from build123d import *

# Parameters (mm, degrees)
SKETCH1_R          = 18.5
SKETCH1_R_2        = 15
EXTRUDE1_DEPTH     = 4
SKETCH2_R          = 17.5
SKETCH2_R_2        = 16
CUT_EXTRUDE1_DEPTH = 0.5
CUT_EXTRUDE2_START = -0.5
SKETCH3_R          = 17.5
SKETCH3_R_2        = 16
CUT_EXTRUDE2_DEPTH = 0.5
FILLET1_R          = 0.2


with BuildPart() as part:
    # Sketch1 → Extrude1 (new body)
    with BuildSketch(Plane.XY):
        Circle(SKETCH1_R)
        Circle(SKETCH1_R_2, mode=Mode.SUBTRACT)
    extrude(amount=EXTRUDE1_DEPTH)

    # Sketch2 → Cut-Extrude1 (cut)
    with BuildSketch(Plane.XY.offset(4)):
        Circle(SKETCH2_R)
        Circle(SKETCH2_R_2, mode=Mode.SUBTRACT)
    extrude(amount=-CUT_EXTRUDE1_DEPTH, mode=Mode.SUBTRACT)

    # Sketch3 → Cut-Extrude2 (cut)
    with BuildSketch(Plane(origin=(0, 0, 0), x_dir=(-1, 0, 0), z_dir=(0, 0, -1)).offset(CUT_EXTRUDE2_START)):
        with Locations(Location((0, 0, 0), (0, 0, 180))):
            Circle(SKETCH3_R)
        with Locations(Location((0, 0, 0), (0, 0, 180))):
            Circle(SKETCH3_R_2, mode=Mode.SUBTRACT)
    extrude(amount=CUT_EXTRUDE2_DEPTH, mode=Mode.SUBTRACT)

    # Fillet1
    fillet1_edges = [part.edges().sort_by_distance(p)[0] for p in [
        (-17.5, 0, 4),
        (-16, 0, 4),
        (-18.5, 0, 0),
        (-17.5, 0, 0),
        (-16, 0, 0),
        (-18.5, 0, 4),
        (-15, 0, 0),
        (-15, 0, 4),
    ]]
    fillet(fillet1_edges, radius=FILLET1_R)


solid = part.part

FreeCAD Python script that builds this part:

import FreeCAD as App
import Part
import Sketcher
from FreeCAD import Vector


def edges_at(feature, points):
    """Names of the edges that pass closest to the given points."""
    edges = feature.Shape.Edges
    near = lambda p: min(range(len(edges)), key=lambda i: edges[i].distToShape(Part.Vertex(*p))[0])
    return sorted({f"Edge{near(p) + 1}" for p in points})

doc = App.newDocument("Part")
body = doc.addObject("PartDesign::Body", "Body")

sketch1 = body.newObject("Sketcher::SketchObject", "Sketch")
sketch1.AttachmentSupport = (doc.getObject("XY_Plane"), [""])
sketch1.MapMode = "FlatFace"
sketch1.addGeometry([
    Part.Circle(Vector(0, 0, 0), Vector(0, 0, 1), 18),
    Part.Circle(Vector(0, 0, 0), Vector(0, 0, 1), 15),
], False)
sketch1.addConstraint([
    Sketcher.Constraint("Coincident", 0, 3, -1, 1),
    Sketcher.Constraint("Coincident", 1, 3, -1, 1),
    Sketcher.Constraint("Diameter", 0, 37.0),
    Sketcher.Constraint("Diameter", 1, 30.0),
])
pad1 = body.newObject("PartDesign::Pad", "Pad")
pad1.Profile = sketch1
pad1.Length = 4

sketch2 = body.newObject("Sketcher::SketchObject", "Sketch001")
sketch2.AttachmentSupport = (doc.getObject("XY_Plane"), [""])
sketch2.MapMode = "FlatFace"
sketch2.AttachmentOffset = App.Placement(Vector(0, 0, 4), App.Rotation())
sketch2.addGeometry([
    Part.Circle(Vector(0, 0, 0), Vector(0, 0, 1), 18),
    Part.Circle(Vector(0, 0, 0), Vector(0, 0, 1), 16),
], False)
sketch2.addConstraint([
    Sketcher.Constraint("Coincident", 0, 3, -1, 1),
    Sketcher.Constraint("Coincident", 1, 3, -1, 1),
    Sketcher.Constraint("Diameter", 0, 35.0),
    Sketcher.Constraint("Diameter", 1, 32.0),
])
pocket1 = body.newObject("PartDesign::Pocket", "Pocket")
pocket1.Profile = sketch2
pocket1.Length = 0.5

sketch3 = body.newObject("Sketcher::SketchObject", "Sketch002")
sketch3.AttachmentSupport = (doc.getObject("XY_Plane"), [""])
sketch3.MapMode = "FlatFace"
sketch3.AttachmentOffset = App.Placement(Vector(0, 0, 0.5), App.Rotation())
sketch3.addGeometry([
    Part.Circle(Vector(0, 0, 0), Vector(0, 0, 1), 18),
    Part.Circle(Vector(0, 0, 0), Vector(0, 0, 1), 16),
], False)
sketch3.addConstraint([
    Sketcher.Constraint("Coincident", 0, 3, -1, 1),
    Sketcher.Constraint("Coincident", 1, 3, -1, 1),
    Sketcher.Constraint("Diameter", 0, 35.0),
    Sketcher.Constraint("Diameter", 1, 32.0),
])
pocket2 = body.newObject("PartDesign::Pocket", "Pocket001")
pocket2.Profile = sketch3
pocket2.Length = 0.5
doc.recompute()

fillet = body.newObject("PartDesign::Fillet", "Fillet")
fillet.Base = (pocket2, edges_at(pocket2, [
    (-17.5, 0, 4),
    (-16, 0, 4),
    (-18.5, 0, 0),
    (-17.5, 0, 0),
    (-16, 0, 0),
    (-18.5, 0, 4),
    (-15, 0, 0),
    (-15, 0, 4),
]))
fillet.Radius = 0.2

doc.recompute()
